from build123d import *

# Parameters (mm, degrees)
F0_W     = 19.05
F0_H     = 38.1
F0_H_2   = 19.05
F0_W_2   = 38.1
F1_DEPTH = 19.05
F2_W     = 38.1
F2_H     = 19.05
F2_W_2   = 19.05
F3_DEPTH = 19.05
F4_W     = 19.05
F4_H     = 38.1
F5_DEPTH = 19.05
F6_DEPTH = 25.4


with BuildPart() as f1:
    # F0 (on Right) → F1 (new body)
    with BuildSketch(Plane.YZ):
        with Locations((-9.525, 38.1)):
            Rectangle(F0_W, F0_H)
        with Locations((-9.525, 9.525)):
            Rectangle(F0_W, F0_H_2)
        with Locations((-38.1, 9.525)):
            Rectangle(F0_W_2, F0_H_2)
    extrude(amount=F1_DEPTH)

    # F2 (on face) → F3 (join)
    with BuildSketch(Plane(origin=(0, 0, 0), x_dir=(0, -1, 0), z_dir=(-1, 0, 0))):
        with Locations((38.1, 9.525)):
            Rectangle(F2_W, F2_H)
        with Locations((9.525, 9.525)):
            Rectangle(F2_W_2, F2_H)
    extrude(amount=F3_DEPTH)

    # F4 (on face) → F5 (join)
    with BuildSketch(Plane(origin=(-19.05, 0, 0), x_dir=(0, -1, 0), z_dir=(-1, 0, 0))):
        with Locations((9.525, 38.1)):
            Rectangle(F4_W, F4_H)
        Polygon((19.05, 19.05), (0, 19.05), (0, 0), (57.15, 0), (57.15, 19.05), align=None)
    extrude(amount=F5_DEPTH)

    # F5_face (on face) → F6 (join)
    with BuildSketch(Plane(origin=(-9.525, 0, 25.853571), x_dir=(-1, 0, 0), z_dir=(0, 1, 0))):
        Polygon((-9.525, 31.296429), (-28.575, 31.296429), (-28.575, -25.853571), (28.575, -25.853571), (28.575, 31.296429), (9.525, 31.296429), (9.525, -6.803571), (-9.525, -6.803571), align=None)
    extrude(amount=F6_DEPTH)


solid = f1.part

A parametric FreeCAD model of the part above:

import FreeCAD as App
import Part
import Sketcher
Q = App.Units.Quantity


def add_polygon(sketch, points):
    """Adds a closed chain of lines whose ends are joined by coincident constraints."""
    first, n = sketch.GeometryCount, len(points)
    for a, b in zip(points, points[1:] + points[:1]):
        sketch.addGeometry(Part.LineSegment(App.Vector(*a, 0), App.Vector(*b, 0)), False)
    for i in range(n):
        sketch.addConstraint(Sketcher.Constraint("Coincident", first + i, 2, first + (i + 1) % n, 1))

doc = App.newDocument("Part")
body = doc.addObject("PartDesign::Body", "Body")

sketch1 = body.newObject("Sketcher::SketchObject", "Sketch")
sketch1.AttachmentSupport = (doc.getObject("YZ_Plane"), [""])
sketch1.MapMode = "FlatFace"
add_polygon(sketch1, [(-19, 57), (-19, 19), (-57, 19), (-57, 0), (0, 0), (0, 57)])
sketch1.addConstraint(Sketcher.Constraint("Vertical", 0))
sketch1.addConstraint(Sketcher.Constraint("Horizontal", 1))
sketch1.addConstraint(Sketcher.Constraint("Vertical", 2))
sketch1.addConstraint(Sketcher.Constraint("Horizontal", 3))
sketch1.addConstraint(Sketcher.Constraint("Vertical", 4))
sketch1.addConstraint(Sketcher.Constraint("Horizontal", 5))
sketch1.addConstraint(Sketcher.Constraint("Coincident", 3, 2, -1, 1))
sketch1.addConstraint(Sketcher.Constraint("Equal", 1, 0))
sketch1.addConstraint(Sketcher.Constraint("Equal", 5, 2))
sketch1.addConstraint(Sketcher.Constraint("DistanceX", 1, 2, 1, 1, Q("1.5 in")))
sketch1.addConstraint(Sketcher.Constraint("DistanceX", 3, 1, 3, 2, Q("2.25 in")))
pad1 = body.newObject("PartDesign::Pad", "Pad")
pad1.Profile = sketch1
pad1.Length = Q("0.75 in")

sketch2 = body.newObject("Sketcher::SketchObject", "Sketch001")
sketch2.AttachmentSupport = (doc.getObject("YZ_Plane"), [""])
sketch2.MapMode = "FlatFace"
add_polygon(sketch2, [(-57, 0), (-57, 19), (0, 19), (0, 0)])
sketch2.addConstraint(Sketcher.Constraint("Vertical", 0))
sketch2.addConstraint(Sketcher.Constraint("Horizontal", 1))
sketch2.addConstraint(Sketcher.Constraint("Vertical", 2))
sketch2.addConstraint(Sketcher.Constraint("Horizontal", 3))
sketch2.addConstraint(Sketcher.Constraint("Coincident", 2, 2, -1, 1))
sketch2.addConstraint(Sketcher.Constraint("DistanceX", 1, 1, 1, 2, Q("2.25 in")))
sketch2.addConstraint(Sketcher.Constraint("DistanceY", 0, 1, 0, 2, Q("0.75 in")))
pad2 = body.newObject("PartDesign::Pad", "Pad001")
pad2.Profile = sketch2
pad2.Length = Q("0.75 in")
pad2.Reversed = True

sketch3 = body.newObject("Sketcher::SketchObject", "Sketch002")
sketch3.AttachmentSupport = (doc.getObject("YZ_Plane"), [""])
sketch3.MapMode = "FlatFace"
sketch3.AttachmentOffset = App.Placement(App.Vector(0, 0, -0.75 * 25.4), App.Rotation())
add_polygon(sketch3, [(0, 57), (0, 0), (-57, 0), (-57, 19), (-19, 19), (-19, 57)])
sketch3.addConstraint(Sketcher.Constraint("Vertical", 0))
sketch3.addConstraint(Sketcher.Constraint("Horizontal", 1))
sketch3.addConstraint(Sketcher.Constraint("Vertical", 2))
sketch3.addConstraint(Sketcher.Constraint("Horizontal", 3))
sketch3.addConstraint(Sketcher.Constraint("Vertical", 4))
sketch3.addConstraint(Sketcher.Constraint("Horizontal", 5))
sketch3.addConstraint(Sketcher.Constraint("Coincident", 0, 2, -1, 1))
sketch3.addConstraint(Sketcher.Constraint("Equal", 1, 0))
sketch3.addConstraint(Sketcher.Constraint("Equal", 5, 2))
sketch3.addConstraint(Sketcher.Constraint("DistanceX", 3, 1, 3, 2, Q("1.5 in")))
sketch3.addConstraint(Sketcher.Constraint("DistanceX", 1, 2, 1, 1, Q("2.25 in")))
pad3 = body.newObject("PartDesign::Pad", "Pad002")
pad3.Profile = sketch3
pad3.Length = Q("0.75 in")
pad3.Reversed = True

sketch4 = body.newObject("Sketcher::SketchObject", "Sketch003")
sketch4.AttachmentSupport = (doc.getObject("XZ_Plane"), [""])
sketch4.MapMode = "FlatFace"
add_polygon(sketch4, [(0, 57), (19, 57), (19, 0), (-38, 0), (-38, 57), (-19, 57), (-19, 19), (0, 19)])
sketch4.addConstraint(Sketcher.Constraint("Horizontal", 0))
sketch4.addConstraint(Sketcher.Constraint("Vertical", 1))
sketch4.addConstraint(Sketcher.Constraint("Horizontal", 2))
sketch4.addConstraint(Sketcher.Constraint("Vertical", 3))
sketch4.addConstraint(Sketcher.Constraint("Horizontal", 4))
sketch4.addConstraint(Sketcher.Constraint("Vertical", 5))
sketch4.addConstraint(Sketcher.Constraint("Horizontal", 6))
sketch4.addConstraint(Sketcher.Constraint("Vertical", 7))
sketch4.addConstraint(Sketcher.Constraint("Symmetric", 0, 2, 4, 2, -2))
sketch4.addConstraint(Sketcher.Constraint("PointOnObject", 1, 2, -1))
sketch4.addConstraint(Sketcher.Constraint("PointOnObject", 6, 2, -2))
sketch4.addConstraint(Sketcher.Constraint("Equal", 0, 4))
sketch4.addConstraint(Sketcher.Constraint("Equal", 2, 1))
sketch4.addConstraint(Sketcher.Constraint("DistanceY", 5, 2, 5, 1, Q("1.5 in")))
sketch4.addConstraint(Sketcher.Constraint("DistanceX", 0, 1, 0, 2, Q("0.75 in")))
pad4 = body.newObject("PartDesign::Pad", "Pad003")
pad4.Profile = sketch4
pad4.Length = Q("1 in")
pad4.Reversed = True

doc.recompute()
